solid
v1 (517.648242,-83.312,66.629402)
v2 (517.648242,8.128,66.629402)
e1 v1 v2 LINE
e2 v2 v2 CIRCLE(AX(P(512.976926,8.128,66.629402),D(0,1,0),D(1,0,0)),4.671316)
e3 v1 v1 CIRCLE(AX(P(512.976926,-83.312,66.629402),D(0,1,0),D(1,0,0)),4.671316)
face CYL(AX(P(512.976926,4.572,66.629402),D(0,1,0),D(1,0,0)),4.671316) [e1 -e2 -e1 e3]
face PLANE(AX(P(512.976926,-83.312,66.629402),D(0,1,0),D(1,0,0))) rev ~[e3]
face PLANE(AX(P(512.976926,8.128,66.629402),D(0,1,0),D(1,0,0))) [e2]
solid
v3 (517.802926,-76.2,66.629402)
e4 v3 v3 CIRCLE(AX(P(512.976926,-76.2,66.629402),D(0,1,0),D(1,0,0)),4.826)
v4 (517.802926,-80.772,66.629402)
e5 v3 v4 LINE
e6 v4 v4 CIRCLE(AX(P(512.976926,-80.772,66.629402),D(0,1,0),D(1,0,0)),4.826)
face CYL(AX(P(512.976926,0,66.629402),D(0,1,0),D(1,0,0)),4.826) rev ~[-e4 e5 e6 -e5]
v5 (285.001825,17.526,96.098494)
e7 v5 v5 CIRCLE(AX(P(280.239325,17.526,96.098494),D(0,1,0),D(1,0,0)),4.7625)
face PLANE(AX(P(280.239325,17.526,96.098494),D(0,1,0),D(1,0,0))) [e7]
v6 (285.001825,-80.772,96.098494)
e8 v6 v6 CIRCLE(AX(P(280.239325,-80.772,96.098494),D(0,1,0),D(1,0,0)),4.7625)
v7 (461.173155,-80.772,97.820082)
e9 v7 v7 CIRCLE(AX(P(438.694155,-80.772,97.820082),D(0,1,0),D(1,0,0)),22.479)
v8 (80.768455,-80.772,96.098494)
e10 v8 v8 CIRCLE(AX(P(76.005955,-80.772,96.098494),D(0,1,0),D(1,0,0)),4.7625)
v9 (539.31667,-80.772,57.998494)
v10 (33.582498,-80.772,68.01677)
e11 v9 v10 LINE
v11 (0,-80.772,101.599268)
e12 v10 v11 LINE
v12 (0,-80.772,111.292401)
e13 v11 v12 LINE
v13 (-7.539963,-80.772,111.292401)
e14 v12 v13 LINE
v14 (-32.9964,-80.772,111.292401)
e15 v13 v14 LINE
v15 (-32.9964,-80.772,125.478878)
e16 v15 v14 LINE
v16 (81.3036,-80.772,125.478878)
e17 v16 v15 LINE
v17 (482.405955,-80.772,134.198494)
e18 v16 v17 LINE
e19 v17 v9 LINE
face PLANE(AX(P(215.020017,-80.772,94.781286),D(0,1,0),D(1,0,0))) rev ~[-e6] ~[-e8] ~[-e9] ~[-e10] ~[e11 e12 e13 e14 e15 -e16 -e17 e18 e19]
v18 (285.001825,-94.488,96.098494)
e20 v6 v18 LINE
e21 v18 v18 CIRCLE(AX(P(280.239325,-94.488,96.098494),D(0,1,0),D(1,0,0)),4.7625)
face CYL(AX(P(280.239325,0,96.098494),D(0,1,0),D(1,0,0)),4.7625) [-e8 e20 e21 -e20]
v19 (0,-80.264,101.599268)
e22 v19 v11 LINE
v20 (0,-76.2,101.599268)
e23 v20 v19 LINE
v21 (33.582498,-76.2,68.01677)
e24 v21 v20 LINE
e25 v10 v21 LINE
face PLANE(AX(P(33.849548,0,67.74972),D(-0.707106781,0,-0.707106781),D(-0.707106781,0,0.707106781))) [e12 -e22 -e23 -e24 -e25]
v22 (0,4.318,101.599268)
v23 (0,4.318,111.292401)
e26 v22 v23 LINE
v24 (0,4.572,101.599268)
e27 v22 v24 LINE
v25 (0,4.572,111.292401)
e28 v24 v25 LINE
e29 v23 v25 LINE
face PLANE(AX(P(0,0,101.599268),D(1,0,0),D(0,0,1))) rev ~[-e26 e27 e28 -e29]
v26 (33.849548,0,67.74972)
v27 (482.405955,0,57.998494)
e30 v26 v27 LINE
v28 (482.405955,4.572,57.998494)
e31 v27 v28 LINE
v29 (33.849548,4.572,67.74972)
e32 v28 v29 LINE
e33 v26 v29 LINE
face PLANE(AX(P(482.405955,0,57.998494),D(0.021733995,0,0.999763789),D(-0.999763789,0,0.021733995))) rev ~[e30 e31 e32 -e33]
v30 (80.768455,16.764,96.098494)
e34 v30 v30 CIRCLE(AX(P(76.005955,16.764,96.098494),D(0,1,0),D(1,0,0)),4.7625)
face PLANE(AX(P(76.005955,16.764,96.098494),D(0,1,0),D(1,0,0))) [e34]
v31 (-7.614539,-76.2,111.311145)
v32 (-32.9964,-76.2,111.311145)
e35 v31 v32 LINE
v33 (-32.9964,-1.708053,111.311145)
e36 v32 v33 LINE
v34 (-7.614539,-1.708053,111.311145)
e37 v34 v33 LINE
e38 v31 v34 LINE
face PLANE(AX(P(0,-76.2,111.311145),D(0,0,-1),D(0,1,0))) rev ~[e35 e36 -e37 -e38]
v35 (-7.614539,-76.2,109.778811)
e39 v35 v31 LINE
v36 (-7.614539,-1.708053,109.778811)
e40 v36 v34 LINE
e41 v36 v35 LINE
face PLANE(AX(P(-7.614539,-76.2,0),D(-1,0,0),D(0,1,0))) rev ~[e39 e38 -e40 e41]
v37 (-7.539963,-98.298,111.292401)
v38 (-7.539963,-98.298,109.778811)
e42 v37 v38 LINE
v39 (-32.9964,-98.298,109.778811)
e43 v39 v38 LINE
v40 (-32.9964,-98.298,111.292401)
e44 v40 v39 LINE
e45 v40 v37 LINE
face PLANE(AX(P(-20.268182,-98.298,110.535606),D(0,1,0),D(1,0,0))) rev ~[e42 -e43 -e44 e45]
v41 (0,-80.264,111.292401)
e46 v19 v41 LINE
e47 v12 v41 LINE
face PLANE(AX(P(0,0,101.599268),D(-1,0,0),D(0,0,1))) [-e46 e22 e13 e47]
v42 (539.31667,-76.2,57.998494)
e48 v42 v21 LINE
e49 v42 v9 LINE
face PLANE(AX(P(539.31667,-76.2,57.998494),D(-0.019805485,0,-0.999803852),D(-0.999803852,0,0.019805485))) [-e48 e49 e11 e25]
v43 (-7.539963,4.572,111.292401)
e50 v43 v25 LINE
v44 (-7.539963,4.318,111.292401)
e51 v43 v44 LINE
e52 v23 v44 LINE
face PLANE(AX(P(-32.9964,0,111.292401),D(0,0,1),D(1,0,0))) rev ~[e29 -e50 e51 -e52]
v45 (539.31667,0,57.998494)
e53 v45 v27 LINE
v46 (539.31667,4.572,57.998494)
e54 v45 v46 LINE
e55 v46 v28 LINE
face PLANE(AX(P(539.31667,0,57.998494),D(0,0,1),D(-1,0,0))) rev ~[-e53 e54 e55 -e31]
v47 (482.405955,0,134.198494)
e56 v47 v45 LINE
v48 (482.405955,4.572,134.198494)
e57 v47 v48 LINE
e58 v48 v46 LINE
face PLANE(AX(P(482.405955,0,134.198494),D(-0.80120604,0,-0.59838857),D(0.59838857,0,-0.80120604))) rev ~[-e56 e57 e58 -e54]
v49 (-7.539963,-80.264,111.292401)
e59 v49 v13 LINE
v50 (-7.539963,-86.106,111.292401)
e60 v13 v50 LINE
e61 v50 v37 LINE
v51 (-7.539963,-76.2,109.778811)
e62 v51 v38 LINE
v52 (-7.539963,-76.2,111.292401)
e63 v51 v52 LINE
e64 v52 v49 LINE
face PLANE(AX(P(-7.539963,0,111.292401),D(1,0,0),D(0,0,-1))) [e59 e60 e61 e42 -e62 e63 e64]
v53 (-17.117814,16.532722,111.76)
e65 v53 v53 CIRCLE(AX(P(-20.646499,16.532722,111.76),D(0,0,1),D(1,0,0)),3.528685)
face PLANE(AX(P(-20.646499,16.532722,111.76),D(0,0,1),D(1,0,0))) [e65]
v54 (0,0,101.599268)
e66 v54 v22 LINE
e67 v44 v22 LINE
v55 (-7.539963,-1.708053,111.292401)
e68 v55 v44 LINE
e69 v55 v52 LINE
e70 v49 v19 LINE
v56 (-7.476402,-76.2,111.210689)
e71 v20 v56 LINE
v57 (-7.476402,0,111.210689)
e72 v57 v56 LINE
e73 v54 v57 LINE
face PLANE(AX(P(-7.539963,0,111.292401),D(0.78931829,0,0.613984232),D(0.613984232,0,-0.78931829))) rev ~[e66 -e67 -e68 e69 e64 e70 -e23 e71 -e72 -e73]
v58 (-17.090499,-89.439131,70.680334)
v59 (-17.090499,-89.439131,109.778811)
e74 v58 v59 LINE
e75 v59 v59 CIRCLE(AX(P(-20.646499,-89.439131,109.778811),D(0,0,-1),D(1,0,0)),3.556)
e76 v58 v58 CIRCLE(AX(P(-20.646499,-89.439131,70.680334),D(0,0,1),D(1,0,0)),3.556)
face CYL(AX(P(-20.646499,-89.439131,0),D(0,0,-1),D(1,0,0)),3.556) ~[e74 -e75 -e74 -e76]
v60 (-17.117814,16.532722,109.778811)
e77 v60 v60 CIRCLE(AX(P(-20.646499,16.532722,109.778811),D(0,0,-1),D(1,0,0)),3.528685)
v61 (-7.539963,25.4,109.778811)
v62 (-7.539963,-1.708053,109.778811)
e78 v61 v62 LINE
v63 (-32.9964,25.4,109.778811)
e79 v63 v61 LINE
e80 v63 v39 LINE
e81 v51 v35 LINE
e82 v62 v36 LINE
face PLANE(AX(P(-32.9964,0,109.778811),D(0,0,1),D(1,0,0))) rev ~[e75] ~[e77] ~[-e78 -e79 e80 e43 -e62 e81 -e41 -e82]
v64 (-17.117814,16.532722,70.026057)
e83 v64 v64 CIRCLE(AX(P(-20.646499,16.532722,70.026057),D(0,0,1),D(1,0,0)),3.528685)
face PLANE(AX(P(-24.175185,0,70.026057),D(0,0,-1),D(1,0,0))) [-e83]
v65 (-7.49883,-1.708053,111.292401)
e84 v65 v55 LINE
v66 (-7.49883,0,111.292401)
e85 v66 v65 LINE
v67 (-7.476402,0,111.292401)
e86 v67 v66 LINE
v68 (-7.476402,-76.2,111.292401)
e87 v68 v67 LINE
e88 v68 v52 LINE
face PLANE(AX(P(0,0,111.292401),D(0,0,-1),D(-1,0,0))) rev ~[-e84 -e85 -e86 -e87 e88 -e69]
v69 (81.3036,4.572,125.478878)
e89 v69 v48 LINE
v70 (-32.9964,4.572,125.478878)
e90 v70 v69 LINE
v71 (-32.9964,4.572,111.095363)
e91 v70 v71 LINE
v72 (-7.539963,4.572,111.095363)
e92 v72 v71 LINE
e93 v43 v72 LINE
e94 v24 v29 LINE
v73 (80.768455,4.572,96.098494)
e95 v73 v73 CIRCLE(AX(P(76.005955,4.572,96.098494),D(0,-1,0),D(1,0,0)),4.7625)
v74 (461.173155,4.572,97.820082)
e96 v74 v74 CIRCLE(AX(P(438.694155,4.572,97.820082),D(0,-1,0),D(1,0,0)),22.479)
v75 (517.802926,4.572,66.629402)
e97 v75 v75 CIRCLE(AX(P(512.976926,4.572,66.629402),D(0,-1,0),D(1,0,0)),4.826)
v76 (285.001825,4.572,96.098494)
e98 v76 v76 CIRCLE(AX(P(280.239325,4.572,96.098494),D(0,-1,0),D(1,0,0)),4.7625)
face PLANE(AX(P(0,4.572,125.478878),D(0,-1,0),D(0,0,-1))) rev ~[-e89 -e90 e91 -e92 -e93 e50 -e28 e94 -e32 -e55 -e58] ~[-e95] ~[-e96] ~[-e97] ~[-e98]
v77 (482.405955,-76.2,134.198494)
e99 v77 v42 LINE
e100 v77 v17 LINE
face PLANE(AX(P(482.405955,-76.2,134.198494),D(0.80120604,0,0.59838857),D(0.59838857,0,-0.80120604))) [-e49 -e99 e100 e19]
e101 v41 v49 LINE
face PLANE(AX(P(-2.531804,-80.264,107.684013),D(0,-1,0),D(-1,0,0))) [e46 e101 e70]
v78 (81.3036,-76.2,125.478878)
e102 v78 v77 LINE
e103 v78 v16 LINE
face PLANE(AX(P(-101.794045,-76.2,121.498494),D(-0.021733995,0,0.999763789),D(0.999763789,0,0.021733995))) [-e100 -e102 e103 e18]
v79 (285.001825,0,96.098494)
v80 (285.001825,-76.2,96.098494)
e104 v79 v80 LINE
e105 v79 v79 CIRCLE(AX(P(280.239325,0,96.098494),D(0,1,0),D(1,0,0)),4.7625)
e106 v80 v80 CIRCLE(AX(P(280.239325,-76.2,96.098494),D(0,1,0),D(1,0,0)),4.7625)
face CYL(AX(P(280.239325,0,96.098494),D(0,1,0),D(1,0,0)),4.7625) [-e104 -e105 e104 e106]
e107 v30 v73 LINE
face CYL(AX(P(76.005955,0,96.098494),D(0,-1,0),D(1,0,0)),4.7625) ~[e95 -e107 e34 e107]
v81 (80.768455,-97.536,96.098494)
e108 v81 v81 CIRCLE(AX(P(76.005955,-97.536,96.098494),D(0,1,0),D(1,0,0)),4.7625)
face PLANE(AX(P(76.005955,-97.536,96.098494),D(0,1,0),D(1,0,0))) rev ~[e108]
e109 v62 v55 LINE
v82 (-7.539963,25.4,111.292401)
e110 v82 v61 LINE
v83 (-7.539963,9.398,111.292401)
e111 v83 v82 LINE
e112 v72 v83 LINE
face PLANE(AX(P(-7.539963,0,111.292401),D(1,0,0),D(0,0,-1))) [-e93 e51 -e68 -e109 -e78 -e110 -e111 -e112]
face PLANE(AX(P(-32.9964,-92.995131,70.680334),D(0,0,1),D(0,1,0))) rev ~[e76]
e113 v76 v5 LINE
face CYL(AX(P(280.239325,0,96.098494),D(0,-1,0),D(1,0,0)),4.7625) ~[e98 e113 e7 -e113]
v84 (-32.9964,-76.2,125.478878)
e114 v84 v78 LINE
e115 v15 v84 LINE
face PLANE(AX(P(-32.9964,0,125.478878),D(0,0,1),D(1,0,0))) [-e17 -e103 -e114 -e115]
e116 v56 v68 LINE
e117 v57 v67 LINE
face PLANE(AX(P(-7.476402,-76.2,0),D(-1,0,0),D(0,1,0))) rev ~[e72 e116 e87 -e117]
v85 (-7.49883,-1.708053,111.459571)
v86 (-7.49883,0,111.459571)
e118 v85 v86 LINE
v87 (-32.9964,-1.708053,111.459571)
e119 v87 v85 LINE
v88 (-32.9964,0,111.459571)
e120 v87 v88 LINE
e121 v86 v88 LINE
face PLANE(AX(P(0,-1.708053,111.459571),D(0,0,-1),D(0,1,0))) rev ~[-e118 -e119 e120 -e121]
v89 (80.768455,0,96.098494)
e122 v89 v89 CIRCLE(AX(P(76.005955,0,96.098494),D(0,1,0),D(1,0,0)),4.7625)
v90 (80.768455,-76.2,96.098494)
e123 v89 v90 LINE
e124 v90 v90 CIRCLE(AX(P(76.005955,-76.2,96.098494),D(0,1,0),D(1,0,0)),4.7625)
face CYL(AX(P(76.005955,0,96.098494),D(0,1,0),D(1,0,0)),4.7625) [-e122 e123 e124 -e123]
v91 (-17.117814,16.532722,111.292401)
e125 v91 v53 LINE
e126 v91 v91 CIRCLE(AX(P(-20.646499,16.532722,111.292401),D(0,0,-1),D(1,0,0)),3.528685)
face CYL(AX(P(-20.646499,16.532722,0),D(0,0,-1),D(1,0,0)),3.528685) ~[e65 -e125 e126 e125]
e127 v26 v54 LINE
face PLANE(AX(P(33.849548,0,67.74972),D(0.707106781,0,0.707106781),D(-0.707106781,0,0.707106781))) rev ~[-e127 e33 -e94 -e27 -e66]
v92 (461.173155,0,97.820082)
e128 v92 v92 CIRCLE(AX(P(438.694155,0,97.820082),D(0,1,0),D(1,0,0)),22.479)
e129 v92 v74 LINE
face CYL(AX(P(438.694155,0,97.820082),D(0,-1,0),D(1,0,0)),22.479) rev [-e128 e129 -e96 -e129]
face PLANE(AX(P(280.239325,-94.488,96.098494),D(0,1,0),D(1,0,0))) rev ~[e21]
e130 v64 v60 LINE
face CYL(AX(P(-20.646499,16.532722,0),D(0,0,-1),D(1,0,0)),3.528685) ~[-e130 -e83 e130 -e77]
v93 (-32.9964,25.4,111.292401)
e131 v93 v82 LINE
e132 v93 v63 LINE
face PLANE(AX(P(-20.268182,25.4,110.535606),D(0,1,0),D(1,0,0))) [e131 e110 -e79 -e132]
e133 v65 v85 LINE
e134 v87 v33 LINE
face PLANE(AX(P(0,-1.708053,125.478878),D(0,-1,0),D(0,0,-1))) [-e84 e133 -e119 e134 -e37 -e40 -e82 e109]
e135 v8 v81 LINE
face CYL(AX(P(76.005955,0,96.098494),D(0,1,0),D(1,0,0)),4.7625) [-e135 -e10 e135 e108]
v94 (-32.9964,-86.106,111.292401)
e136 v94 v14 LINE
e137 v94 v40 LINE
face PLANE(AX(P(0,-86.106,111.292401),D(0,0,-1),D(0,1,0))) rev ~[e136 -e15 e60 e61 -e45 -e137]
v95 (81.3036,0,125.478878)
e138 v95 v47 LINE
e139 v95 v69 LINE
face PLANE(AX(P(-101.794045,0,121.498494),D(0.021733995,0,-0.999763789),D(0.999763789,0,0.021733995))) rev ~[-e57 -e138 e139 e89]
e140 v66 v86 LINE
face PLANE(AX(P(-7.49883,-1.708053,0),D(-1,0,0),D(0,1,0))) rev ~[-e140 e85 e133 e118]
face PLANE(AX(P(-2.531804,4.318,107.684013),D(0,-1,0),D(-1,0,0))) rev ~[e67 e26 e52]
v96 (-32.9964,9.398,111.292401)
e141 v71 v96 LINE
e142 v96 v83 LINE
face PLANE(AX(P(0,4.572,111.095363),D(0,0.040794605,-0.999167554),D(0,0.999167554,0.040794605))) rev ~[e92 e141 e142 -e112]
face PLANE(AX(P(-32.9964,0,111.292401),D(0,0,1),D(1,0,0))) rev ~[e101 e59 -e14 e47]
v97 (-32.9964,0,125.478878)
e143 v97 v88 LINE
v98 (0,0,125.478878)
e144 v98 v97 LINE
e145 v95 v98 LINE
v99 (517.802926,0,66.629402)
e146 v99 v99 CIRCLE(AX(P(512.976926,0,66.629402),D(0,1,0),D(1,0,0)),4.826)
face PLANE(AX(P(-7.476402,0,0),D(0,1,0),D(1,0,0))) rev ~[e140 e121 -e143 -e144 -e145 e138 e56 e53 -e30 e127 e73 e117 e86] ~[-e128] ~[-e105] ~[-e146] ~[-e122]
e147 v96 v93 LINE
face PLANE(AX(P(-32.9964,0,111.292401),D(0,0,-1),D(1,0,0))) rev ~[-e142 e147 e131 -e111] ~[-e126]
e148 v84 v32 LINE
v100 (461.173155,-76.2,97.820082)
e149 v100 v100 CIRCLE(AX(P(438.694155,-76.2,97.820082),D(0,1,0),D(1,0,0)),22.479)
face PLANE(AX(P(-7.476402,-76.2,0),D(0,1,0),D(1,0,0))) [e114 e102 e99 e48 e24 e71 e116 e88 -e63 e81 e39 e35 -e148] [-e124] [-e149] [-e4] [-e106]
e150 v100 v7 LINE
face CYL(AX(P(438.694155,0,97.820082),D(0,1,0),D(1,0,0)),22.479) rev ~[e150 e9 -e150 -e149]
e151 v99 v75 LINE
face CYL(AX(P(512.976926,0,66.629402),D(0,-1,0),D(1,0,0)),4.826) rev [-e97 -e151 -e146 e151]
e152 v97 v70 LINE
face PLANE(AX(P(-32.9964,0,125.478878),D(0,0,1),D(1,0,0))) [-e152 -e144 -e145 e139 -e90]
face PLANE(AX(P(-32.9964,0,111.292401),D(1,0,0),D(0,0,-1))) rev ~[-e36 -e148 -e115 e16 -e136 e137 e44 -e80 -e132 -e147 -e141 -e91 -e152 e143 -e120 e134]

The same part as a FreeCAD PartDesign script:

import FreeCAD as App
import Part
import Sketcher

V = App.Vector
Q = App.Units.Quantity


def add_polygon(sketch, points):
    """Adds a closed chain of lines whose ends are joined by coincident constraints."""
    first, n = sketch.GeometryCount, len(points)
    for a, b in zip(points, points[1:] + points[:1]):
        sketch.addGeometry(Part.LineSegment(App.Vector(*a, 0), App.Vector(*b, 0)), False)
    for i in range(n):
        sketch.addConstraint(Sketcher.Constraint("Coincident", first + i, 2, first + (i + 1) % n, 1))

doc = App.newDocument("Part")
body = doc.addObject("PartDesign::Body", "Body")

sketch1 = body.newObject("Sketcher::SketchObject", "Sketch")
sketch1.AttachmentSupport = (doc.getObject("XZ_Plane"), [""])
sketch1.MapMode = "FlatFace"
add_polygon(sketch1, [(-102, 71), (-102, 121), (482, 134), (539, 58), (482, 58)])
sketch1.addConstraint(Sketcher.Constraint("Vertical", 0))
sketch1.addConstraint(Sketcher.Constraint("Horizontal", 3))
sketch1.addConstraint(Sketcher.Constraint("Vertical", 1, 2, 3, 2))
sketch1.addConstraint(Sketcher.Constraint("Equal", 1, 4))
sketch1.addConstraint(Sketcher.Constraint("DistanceY", 0, 1, 0, 2, Q("2 in")))
sketch1.addConstraint(Sketcher.Constraint("DistanceX", 0, 2, 1, 2, Q("23 in")))
sketch1.addConstraint(Sketcher.Constraint("DistanceY", 2, 2, 1, 2, Q("3 in")))
sketch1.addConstraint(Sketcher.Constraint("Distance", 2, 95.106622))
sketch1.addConstraint(Sketcher.Constraint("DistanceX", -1, 1, 2, 2, 539.31667))
sketch1.addConstraint(Sketcher.Constraint("DistanceY", -1, 1, 0, 2, 121.498494))
pad1 = body.newObject("PartDesign::Pad", "Pad")
pad1.Profile = sketch1
pad1.Length = Q("0.18 in")
pad1.Reversed = True

sketch2 = body.newObject("Sketcher::SketchObject", "Sketch001")
sketch2.AttachmentSupport = (doc.getObject("XZ_Plane"), [""])
sketch2.MapMode = "FlatFace"
sketch2.addGeometry(Part.Circle(V(76, 96.1, 0), V(0, 0, 1), 4.8), False)
sketch2.addGeometry(Part.Circle(V(280.2, 96.1, 0), V(0, 0, 1), 4.8), False)
sketch2.addConstraint(Sketcher.Constraint("Equal", 0, 1))
sketch2.addConstraint(Sketcher.Constraint("Horizontal", 0, 3, 1, 3))
sketch2.addConstraint(Sketcher.Constraint("Diameter", 0, Q("0.375 in")))
sketch2.addConstraint(Sketcher.Constraint("DistanceX", 0, 3, 1, 3, 204.233371))
sketch2.addConstraint(Sketcher.Constraint("DistanceX", -1, 1, 0, 3, 76.005955))
sketch2.addConstraint(Sketcher.Constraint("DistanceY", -1, 1, 0, 3, 96.098494))
pocket1 = body.newObject("PartDesign::Pocket", "Pocket")
pocket1.Profile = sketch2
pocket1.Type = "ThroughAll"
pocket1.Midplane = True

sketch3 = body.newObject("Sketcher::SketchObject", "Sketch002")
sketch3.AttachmentSupport = (doc.getObject("XZ_Plane"), [""])
sketch3.MapMode = "FlatFace"
sketch3.addGeometry(Part.Circle(V(439, 98, 0), V(0, 0, 1), 8), False)
sketch3.addConstraint(Sketcher.Constraint("Diameter", 0, Q("0.625 in")))
sketch3.addConstraint(Sketcher.Constraint("DistanceY", -1, 1, 0, 3, 97.820082))
sketch3.addConstraint(Sketcher.Constraint("DistanceX", -1, 1, 0, 3, 438.694155))
pocket2 = body.newObject("PartDesign::Pocket", "Pocket001")
pocket2.Profile = sketch3
pocket2.Type = "ThroughAll"
pocket2.Midplane = True

sketch4 = body.newObject("Sketcher::SketchObject", "Sketch003")
sketch4.AttachmentSupport = (doc.getObject("XZ_Plane"), [""])
sketch4.MapMode = "FlatFace"
sketch4.addGeometry(Part.Circle(V(280.2, 96.1, 0), V(0, 0, 1), 4.8), False)
sketch4.addConstraint(Sketcher.Constraint("Diameter", 0, Q("0.375 in")))
sketch4.addConstraint(Sketcher.Constraint("DistanceX", -1, 1, 0, 3, 280.239325))
sketch4.addConstraint(Sketcher.Constraint("DistanceY", -1, 1, 0, 3, 96.098494))
pad2 = body.newObject("PartDesign::Pad", "Pad001")
pad2.Profile = sketch4
pad2.Type = "TwoLengths"
pad2.Length = Q("0.69 in")
pad2.Length2 = Q("3.72 in")
pad2.Reversed = True

sketch5 = body.newObject("Sketcher::SketchObject", "Sketch004")
sketch5.AttachmentSupport = (doc.getObject("XZ_Plane"), [""])
sketch5.MapMode = "FlatFace"
sketch5.addGeometry(Part.Circle(V(76, 96.1, 0), V(0, 0, 1), 4.8), False)
sketch5.addConstraint(Sketcher.Constraint("Diameter", 0, Q("0.375 in")))
sketch5.addConstraint(Sketcher.Constraint("DistanceX", -1, 1, 0, 3, 76.005955))
sketch5.addConstraint(Sketcher.Constraint("DistanceY", -1, 1, 0, 3, 96.098494))
pad3 = body.newObject("PartDesign::Pad", "Pad002")
pad3.Profile = sketch5
pad3.Type = "TwoLengths"
pad3.Length = Q("0.63 in")
pad3.Length2 = Q("3.84 in")
pad3.Reversed = True

sketch6 = body.newObject("Sketcher::SketchObject", "Sketch005")
sketch6.AttachmentSupport = (doc.getObject("XZ_Plane"), [""])
sketch6.MapMode = "FlatFace"
sketch6.AttachmentOffset = App.Placement(V(0, 0, 3 * 25.4), App.Rotation())
add_polygon(sketch6, [(-102, 71), (539, 58), (482, 134), (-102, 121)])
sketch6.addGeometry(Part.Circle(V(439, 98, 0), V(0, 0, 1), 8), False)
sketch6.addConstraint(Sketcher.Constraint("Vertical", 3))
sketch6.addConstraint(Sketcher.Constraint("DistanceY", 3, 2, 3, 1, Q("2 in")))
sketch6.addConstraint(Sketcher.Constraint("Diameter", 4, Q("0.625 in")))
sketch6.addConstraint(Sketcher.Constraint("DistanceY", 0, 2, 1, 2, Q("3 in")))
sketch6.addConstraint(Sketcher.Constraint("DistanceX", 2, 2, 1, 2, Q("23 in")))
sketch6.addConstraint(Sketcher.Constraint("DistanceY", 2, 2, 1, 2, Q("0.5 in")))
sketch6.addConstraint(Sketcher.Constraint("DistanceX", 4, 3, 1, 2, 43.7118))
sketch6.addConstraint(Sketcher.Constraint("Distance", 1, 95.106622))
sketch6.addConstraint(Sketcher.Constraint("DistanceY", -1, 1, 4, 3, 97.820082))
sketch6.addConstraint(Sketcher.Constraint("DistanceX", -1, 1, 0, 2, 539.31667))
sketch6.addConstraint(Sketcher.Constraint("DistanceY", -1, 1, 0, 2, 57.998494))
pad4 = body.newObject("PartDesign::Pad", "Pad003")
pad4.Profile = sketch6
pad4.Length = Q("0.18 in")

sketch7 = body.newObject("Sketcher::SketchObject", "Sketch006")
sketch7.AttachmentSupport = (doc.getObject("XZ_Plane"), [""])
sketch7.MapMode = "FlatFace"
sketch7.addGeometry(Part.Circle(V(439, 98, 0), V(0, 0, 1), 22), False)
sketch7.addConstraint(Sketcher.Constraint("Diameter", 0, Q("1.77 in")))
sketch7.addConstraint(Sketcher.Constraint("DistanceY", -1, 1, 0, 3, 97.820082))
sketch7.addConstraint(Sketcher.Constraint("DistanceX", -1, 1, 0, 3, 438.694155))
pocket3 = body.newObject("PartDesign::Pocket", "Pocket002")
pocket3.Profile = sketch7
pocket3.Type = "ThroughAll"
pocket3.Midplane = True

sketch8 = body.newObject("Sketcher::SketchObject", "Sketch007")
sketch8.AttachmentSupport = (doc.getObject("XZ_Plane"), [""])
sketch8.MapMode = "FlatFace"
sketch8.addGeometry(Part.Circle(V(513, 66.6, 0), V(0, 0, 1), 4.8), False)
sketch8.addConstraint(Sketcher.Constraint("Diameter", 0, Q("0.38 in")))
sketch8.addConstraint(Sketcher.Constraint("DistanceX", -1, 1, 0, 3, 512.976926))
sketch8.addConstraint(Sketcher.Constraint("DistanceY", -1, 1, 0, 3, 66.629402))
pocket4 = body.newObject("PartDesign::Pocket", "Pocket003")
pocket4.Profile = sketch8
pocket4.Type = "ThroughAll"
pocket4.Midplane = True

sketch9 = body.newObject("Sketcher::SketchObject", "Sketch008")
sketch9.AttachmentSupport = (doc.getObject("XZ_Plane"), [""])
sketch9.MapMode = "FlatFace"
add_polygon(sketch9, [(0, 102), (34, 68), (-102, 71), (-102, 121), (0, 124)])
sketch9.addConstraint(Sketcher.Constraint("Vertical", 2))
sketch9.addConstraint(Sketcher.Constraint("Vertical", 4))
sketch9.addConstraint(Sketcher.Constraint("PointOnObject", 3, 2, -2))
sketch9.addConstraint(Sketcher.Constraint("DistanceY", 2, 1, 2, 2, Q("2 in")))
sketch9.addConstraint(Sketcher.Constraint("Angle", 0, Q("-45 deg")))
sketch9.addConstraint(Sketcher.Constraint("DistanceY", 4, 2, 4, 1, 22.11214))
sketch9.addConstraint(Sketcher.Constraint("Distance", 0, 47.87049))
sketch9.addConstraint(Sketcher.Constraint("Distance", 1, 135.675642))
sketch9.addConstraint(Sketcher.Constraint("DistanceY", -1, 1, 0, 2, 67.74972))
sketch9.addConstraint(Sketcher.Constraint("Distance", 3, 101.818096))
pocket5 = body.newObject("PartDesign::Pocket", "Pocket004")
pocket5.Profile = sketch9
pocket5.Type = "ThroughAll"
pocket5.Midplane = True

sketch10 = body.newObject("Sketcher::SketchObject", "Sketch009")
sketch10.AttachmentSupport = (doc.getObject("XZ_Plane"), [""])
sketch10.MapMode = "FlatFace"
add_polygon(sketch10, [(-33, 111), (-33, 125), (81, 125), (81, 111)])
sketch10.addConstraint(Sketcher.Constraint("Vertical", 0))
sketch10.addConstraint(Sketcher.Constraint("Horizontal", 1))
sketch10.addConstraint(Sketcher.Constraint("Vertical", 2))
sketch10.addConstraint(Sketcher.Constraint("Horizontal", 3))
sketch10.addConstraint(Sketcher.Constraint("DistanceX", 1, 1, 1, 2, Q("4.5 in")))
sketch10.addConstraint(Sketcher.Constraint("DistanceX", 0, 2, -1, 1, 32.9964))
sketch10.addConstraint(Sketcher.Constraint("DistanceY", -1, 1, 2, 2, 111.292401))
sketch10.addConstraint(Sketcher.Constraint("DistanceY", 0, 1, 0, 2, 14.186476))
pad5 = body.newObject("PartDesign::Pad", "Pad004")
pad5.Profile = sketch10
pad5.Type = "TwoLengths"
pad5.Length = Q("0.37 in")
pad5.Length2 = Q("3.39 in")
pad5.Reversed = True

sketch11 = body.newObject("Sketcher::SketchObject", "Sketch010")
sketch11.AttachmentSupport = (doc.getObject("XZ_Plane"), [""])
sketch11.MapMode = "FlatFace"
add_polygon(sketch11, [(-33, 109.8), (-33, 111.3), (-7.5, 111.3), (-7.5, 109.8)])
sketch11.addConstraint(Sketcher.Constraint("Vertical", 0))
sketch11.addConstraint(Sketcher.Constraint("Horizontal", 1))
sketch11.addConstraint(Sketcher.Constraint("Vertical", 2))
sketch11.addConstraint(Sketcher.Constraint("Horizontal", 3))
sketch11.addConstraint(Sketcher.Constraint("DistanceY", 0, 1, 0, 2, 1.51359))
sketch11.addConstraint(Sketcher.Constraint("DistanceX", 0, 2, -1, 1, 32.9964))
sketch11.addConstraint(Sketcher.Constraint("DistanceY", -1, 1, 0, 2, 111.292401))
sketch11.addConstraint(Sketcher.Constraint("DistanceX", 1, 1, 1, 2, 25.456437))
pad6 = body.newObject("PartDesign::Pad", "Pad005")
pad6.Profile = sketch11
pad6.Type = "TwoLengths"
pad6.Length = Q("1 in")
pad6.Length2 = Q("3.87 in")
pad6.Reversed = True

sketch12 = body.newObject("Sketcher::SketchObject", "Sketch011")
sketch12.AttachmentSupport = (doc.getObject("YZ_Plane"), [""])
sketch12.MapMode = "FlatFace"
add_polygon(sketch12, [(0, 125), (-76, 125), (-76, 112), (0, 112)])
sketch12.addConstraint(Sketcher.Constraint("Horizontal", 0))
sketch12.addConstraint(Sketcher.Constraint("Vertical", 1))
sketch12.addConstraint(Sketcher.Constraint("Horizontal", 2))
sketch12.addConstraint(Sketcher.Constraint("Vertical", 3))
sketch12.addConstraint(Sketcher.Constraint("PointOnObject", 2, 2, -2))
sketch12.addConstraint(Sketcher.Constraint("DistanceX", 0, 2, 0, 1, Q("3 in")))
sketch12.addConstraint(Sketcher.Constraint("DistanceY", 1, 2, 1, 1, 13.736168))
sketch12.addConstraint(Sketcher.Constraint("DistanceY", -1, 1, 1, 2, 111.74271))
pocket6 = body.newObject("PartDesign::Pocket", "Pocket005")
pocket6.Profile = sketch12
pocket6.Length = Q("5.02 in")
pocket6.Reversed = True

sketch13 = body.newObject("Sketcher::SketchObject", "Sketch012")
sketch13.AttachmentSupport = (doc.getObject("YZ_Plane"), [""])
sketch13.MapMode = "FlatFace"
add_polygon(sketch13, [(-2, 125), (-74, 125), (-74, 111), (-2, 111)])
sketch13.addConstraint(Sketcher.Constraint("Horizontal", 0))
sketch13.addConstraint(Sketcher.Constraint("Vertical", 1))
sketch13.addConstraint(Sketcher.Constraint("Horizontal", 2))
sketch13.addConstraint(Sketcher.Constraint("Vertical", 3))
sketch13.addConstraint(Sketcher.Constraint("DistanceX", 0, 2, 0, 1, 72.287064))
sketch13.addConstraint(Sketcher.Constraint("DistanceY", 1, 2, 1, 1, 14.167733))
sketch13.addConstraint(Sketcher.Constraint("DistanceX", 0, 2, -1, 1, 73.995117))
sketch13.addConstraint(Sketcher.Constraint("DistanceY", -1, 1, 0, 2, 125.478878))
pocket7 = body.newObject("PartDesign::Pocket", "Pocket006")
pocket7.Profile = sketch13
pocket7.Length = Q("5.02 in")

sketch14 = body.newObject("Sketcher::SketchObject", "Sketch013")
sketch14.AttachmentSupport = (doc.getObject("XY_Plane"), [""])
sketch14.MapMode = "FlatFace"
sketch14.AttachmentOffset = App.Placement(V(0, 0, 111.74271), App.Rotation())
add_polygon(sketch14, [(0, -5), (0, -71), (71, -71), (71, -5)])
sketch14.addConstraint(Sketcher.Constraint("Vertical", 0))
sketch14.addConstraint(Sketcher.Constraint("Horizontal", 1))
sketch14.addConstraint(Sketcher.Constraint("Vertical", 2))
sketch14.addConstraint(Sketcher.Constraint("Horizontal", 3))
sketch14.addConstraint(Sketcher.Constraint("PointOnObject", 0, 2, -2))
sketch14.addConstraint(Sketcher.Constraint("DistanceX", 1, 1, 1, 2, 71.243455))
sketch14.addConstraint(Sketcher.Constraint("DistanceY", 0, 2, 0, 1, 66.240284))
sketch14.addConstraint(Sketcher.Constraint("DistanceY", 0, 2, -1, 1, 71.184759))
pocket8 = body.newObject("PartDesign::Pocket", "Pocket007")
pocket8.Profile = sketch14
pocket8.Type = "ThroughAll"
pocket8.Midplane = True

sketch15 = body.newObject("Sketcher::SketchObject", "Sketch014")
sketch15.AttachmentSupport = (doc.getObject("XY_Plane"), [""])
sketch15.MapMode = "FlatFace"
add_polygon(sketch15, [(71.2, -4.9), (71.2, -71.2), (81.3, -76.2), (81.3, 0), (0, 0), (0, -4.9)])
sketch15.addConstraint(Sketcher.Constraint("Vertical", 0))
sketch15.addConstraint(Sketcher.Constraint("Vertical", 2))
sketch15.addConstraint(Sketcher.Constraint("Horizontal", 3))
sketch15.addConstraint(Sketcher.Constraint("Vertical", 4))
sketch15.addConstraint(Sketcher.Constraint("Horizontal", 5))
sketch15.addConstraint(Sketcher.Constraint("Coincident", 3, 2, -1, 1))
sketch15.addConstraint(Sketcher.Constraint("DistanceY", 2, 1, 2, 2, Q("3 in")))
sketch15.addConstraint(Sketcher.Constraint("DistanceX", 3, 2, 3, 1, 81.3036))
sketch15.addConstraint(Sketcher.Constraint("Distance", 1, 11.24096))
sketch15.addConstraint(Sketcher.Constraint("DistanceX", 5, 1, 5, 2, 71.243455))
sketch15.addConstraint(Sketcher.Constraint("DistanceY", 0, 2, 0, 1, 66.240284))
pocket9 = body.newObject("PartDesign::Pocket", "Pocket008")
pocket9.Profile = sketch15
pocket9.Type = "ThroughAll"
pocket9.Midplane = True

sketch16 = body.newObject("Sketcher::SketchObject", "Sketch015")
sketch16.AttachmentSupport = (doc.getObject("XY_Plane"), [""])
sketch16.MapMode = "FlatFace"
add_polygon(sketch16, [(71, -71), (0, -71), (0, -76), (82, -76)])
sketch16.addConstraint(Sketcher.Constraint("Horizontal", 0))
sketch16.addConstraint(Sketcher.Constraint("Vertical", 1))
sketch16.addConstraint(Sketcher.Constraint("Horizontal", 2))
sketch16.addConstraint(Sketcher.Constraint("PointOnObject", 0, 2, -2))
sketch16.addConstraint(Sketcher.Constraint("DistanceY", 1, 2, -1, 1, Q("3 in")))
sketch16.addConstraint(Sketcher.Constraint("DistanceX", 2, 1, 2, 2, 81.544591))
sketch16.addConstraint(Sketcher.Constraint("DistanceY", 1, 2, 1, 1, 5.015241))
sketch16.addConstraint(Sketcher.Constraint("Distance", 3, 11.45714))
pocket10 = body.newObject("PartDesign::Pocket", "Pocket009")
pocket10.Profile = sketch16
pocket10.Length = Q("15.65 in")
pocket10.Reversed = True

sketch17 = body.newObject("Sketcher::SketchObject", "Sketch016")
sketch17.AttachmentSupport = (doc.getObject("XZ_Plane"), [""])
sketch17.MapMode = "FlatFace"
sketch17.addGeometry(Part.Circle(V(76, 96.1, 0), V(0, 0, 1), 4.8), False)
sketch17.addConstraint(Sketcher.Constraint("Diameter", 0, Q("0.375 in")))
sketch17.addConstraint(Sketcher.Constraint("DistanceX", -1, 1, 0, 3, 76.005955))
sketch17.addConstraint(Sketcher.Constraint("DistanceY", -1, 1, 0, 3, 96.098494))
pad7 = body.newObject("PartDesign::Pad", "Pad006")
pad7.Profile = sketch17
pad7.Type = "TwoLengths"
pad7.Length = Q("0.66 in")
pad7.Length2 = Q("3.76 in")
pad7.Reversed = True

sketch18 = body.newObject("Sketcher::SketchObject", "Sketch017")
sketch18.AttachmentSupport = (doc.getObject("YZ_Plane"), [""])
sketch18.MapMode = "FlatFace"
add_polygon(sketch18, [(4.6, 125.5), (4.6, 111.1), (9.4, 111.3), (9.4, 125.5)])
sketch18.addConstraint(Sketcher.Constraint("Vertical", 0))
sketch18.addConstraint(Sketcher.Constraint("Vertical", 2))
sketch18.addConstraint(Sketcher.Constraint("Horizontal", 3))
sketch18.addConstraint(Sketcher.Constraint("DistanceX", 3, 2, 3, 1, Q("0.19 in")))
sketch18.addConstraint(Sketcher.Constraint("DistanceX", -1, 1, 0, 2, Q("0.18 in")))
sketch18.addConstraint(Sketcher.Constraint("DistanceY", -1, 1, 1, 2, 111.292401))
sketch18.addConstraint(Sketcher.Constraint("Distance", 1, 4.830021))
sketch18.addConstraint(Sketcher.Constraint("DistanceY", 0, 2, 0, 1, 14.383515))
pocket11 = body.newObject("PartDesign::Pocket", "Pocket010")
pocket11.Profile = sketch18
pocket11.Type = "ThroughAll"
pocket11.Midplane = True

sketch19 = body.newObject("Sketcher::SketchObject", "Sketch018")
sketch19.AttachmentSupport = (doc.getObject("YZ_Plane"), [""])
sketch19.MapMode = "FlatFace"
add_polygon(sketch19, [(-81, 125), (-86, 125), (-86, 111), (-81, 111)])
sketch19.addConstraint(Sketcher.Constraint("Horizontal", 0))
sketch19.addConstraint(Sketcher.Constraint("Vertical", 1))
sketch19.addConstraint(Sketcher.Constraint("Horizontal", 2))
sketch19.addConstraint(Sketcher.Constraint("Vertical", 3))
sketch19.addConstraint(Sketcher.Constraint("DistanceX", 0, 2, 0, 1, Q("0.21 in")))
sketch19.addConstraint(Sketcher.Constraint("DistanceX", 0, 2, -1, 1, Q("3.39 in")))
sketch19.addConstraint(Sketcher.Constraint("DistanceY", -1, 1, 1, 2, 111.292401))
sketch19.addConstraint(Sketcher.Constraint("DistanceY", 1, 2, 1, 1, 14.186476))
pocket12 = body.newObject("PartDesign::Pocket", "Pocket011")
pocket12.Profile = sketch19
pocket12.Type = "ThroughAll"
pocket12.Midplane = True

sketch20 = body.newObject("Sketcher::SketchObject", "Sketch019")
sketch20.AttachmentSupport = (doc.getObject("YZ_Plane"), [""])
sketch20.MapMode = "FlatFace"
add_polygon(sketch20, [(0, 125.5), (-1.7, 125.5), (-1.7, 111.5), (0, 111.5)])
sketch20.addConstraint(Sketcher.Constraint("Horizontal", 0))
sketch20.addConstraint(Sketcher.Constraint("Vertical", 1))
sketch20.addConstraint(Sketcher.Constraint("Horizontal", 2))
sketch20.addConstraint(Sketcher.Constraint("Vertical", 3))
sketch20.addConstraint(Sketcher.Constraint("PointOnObject", 2, 2, -2))
sketch20.addConstraint(Sketcher.Constraint("DistanceX", 0, 2, 0, 1, 1.708053))
sketch20.addConstraint(Sketcher.Constraint("DistanceY", 1, 2, 1, 1, 14.019307))
sketch20.addConstraint(Sketcher.Constraint("DistanceY", -1, 1, 1, 2, 111.459571))
pocket13 = body.newObject("PartDesign::Pocket", "Pocket012")
pocket13.Profile = sketch20
pocket13.Type = "ThroughAll"
pocket13.Midplane = True

sketch21 = body.newObject("Sketcher::SketchObject", "Sketch020")
sketch21.AttachmentSupport = (doc.getObject("YZ_Plane"), [""])
sketch21.MapMode = "FlatFace"
add_polygon(sketch21, [(-74, 125.5), (-76.2, 125.5), (-76.2, 111.3), (-74, 111.3)])
sketch21.addConstraint(Sketcher.Constraint("Horizontal", 0))
sketch21.addConstraint(Sketcher.Constraint("Vertical", 1))
sketch21.addConstraint(Sketcher.Constraint("Horizontal", 2))
sketch21.addConstraint(Sketcher.Constraint("Vertical", 3))
sketch21.addConstraint(Sketcher.Constraint("DistanceX", 0, 2, -1, 1, Q("3 in")))
sketch21.addConstraint(Sketcher.Constraint("DistanceX", 0, 2, 0, 1, 2.204883))
sketch21.addConstraint(Sketcher.Constraint("DistanceY", 1, 2, 1, 1, 14.167733))
sketch21.addConstraint(Sketcher.Constraint("DistanceY", -1, 1, 0, 2, 125.478878))
pocket14 = body.newObject("PartDesign::Pocket", "Pocket013")
pocket14.Profile = sketch21
pocket14.Type = "ThroughAll"
pocket14.Midplane = True

sketch22 = body.newObject("Sketcher::SketchObject", "Sketch021")
sketch22.AttachmentSupport = (doc.getObject("XY_Plane"), [""])
sketch22.MapMode = "FlatFace"
add_polygon(sketch22, [(-8, -2), (-8, -76), (0, -76), (0, -2)])
sketch22.addConstraint(Sketcher.Constraint("Vertical", 0))
sketch22.addConstraint(Sketcher.Constraint("Horizontal", 1))
sketch22.addConstraint(Sketcher.Constraint("Vertical", 2))
sketch22.addConstraint(Sketcher.Constraint("Horizontal", 3))
sketch22.addConstraint(Sketcher.Constraint("PointOnObject", 1, 2, -2))
sketch22.addConstraint(Sketcher.Constraint("DistanceY", 0, 2, -1, 1, Q("3 in")))
sketch22.addConstraint(Sketcher.Constraint("DistanceX", 1, 1, 1, 2, 7.614539))
sketch22.addConstraint(Sketcher.Constraint("DistanceY", 0, 2, 0, 1, 74.491947))
pocket15 = body.newObject("PartDesign::Pocket", "Pocket014")
pocket15.Profile = sketch22
pocket15.Length = Q("10 in")
pocket15.Reversed = True

sketch23 = body.newObject("Sketcher::SketchObject", "Sketch022")
sketch23.AttachmentSupport = (doc.getObject("XY_Plane"), [""])
sketch23.MapMode = "FlatFace"
add_polygon(sketch23, [(-7.5, 0), (-7.5, -1.7), (0, -1.7), (0, 0)])
sketch23.addConstraint(Sketcher.Constraint("Vertical", 0))
sketch23.addConstraint(Sketcher.Constraint("Horizontal", 1))
sketch23.addConstraint(Sketcher.Constraint("Vertical", 2))
sketch23.addConstraint(Sketcher.Constraint("Horizontal", 3))
sketch23.addConstraint(Sketcher.Constraint("Coincident", 2, 2, -1, 1))
sketch23.addConstraint(Sketcher.Constraint("DistanceX", 1, 1, 1, 2, 7.49883))
sketch23.addConstraint(Sketcher.Constraint("DistanceY", 0, 2, 0, 1, 1.708053))
pocket16 = body.newObject("PartDesign::Pocket", "Pocket015")
pocket16.Profile = sketch23
pocket16.Length = Q("13.39 in")
pocket16.Reversed = True

sketch24 = body.newObject("Sketcher::SketchObject", "Sketch023")
sketch24.AttachmentSupport = (doc.getObject("XZ_Plane"), [""])
sketch24.MapMode = "FlatFace"
add_polygon(sketch24, [(0, 102), (-8, 111), (0, 111)])
sketch24.addConstraint(Sketcher.Constraint("Horizontal", 1))
sketch24.addConstraint(Sketcher.Constraint("Vertical", 2))
sketch24.addConstraint(Sketcher.Constraint("PointOnObject", 1, 2, -2))
sketch24.addConstraint(Sketcher.Constraint("DistanceY", -1, 1, 0, 2, 111.292401))
sketch24.addConstraint(Sketcher.Constraint("DistanceX", 1, 1, 1, 2, 7.539963))
sketch24.addConstraint(Sketcher.Constraint("DistanceY", 2, 2, 2, 1, 9.693133))
pad8 = body.newObject("PartDesign::Pad", "Pad007")
pad8.Profile = sketch24
pad8.Type = "TwoLengths"
pad8.Length = Q("0.17 in")
pad8.Length2 = Q("3.16 in")
pad8.Reversed = True

sketch25 = body.newObject("Sketcher::SketchObject", "Sketch024")
sketch25.AttachmentSupport = (doc.getObject("XY_Plane"), [""])
sketch25.MapMode = "FlatFace"
add_polygon(sketch25, [(-7, 0), (-7, -76), (0, -76), (0, 0)])
sketch25.addConstraint(Sketcher.Constraint("Vertical", 0))
sketch25.addConstraint(Sketcher.Constraint("Horizontal", 1))
sketch25.addConstraint(Sketcher.Constraint("Vertical", 2))
sketch25.addConstraint(Sketcher.Constraint("Horizontal", 3))
sketch25.addConstraint(Sketcher.Constraint("Coincident", 2, 2, -1, 1))
sketch25.addConstraint(Sketcher.Constraint("DistanceY", 0, 2, 0, 1, Q("3 in")))
sketch25.addConstraint(Sketcher.Constraint("DistanceX", 1, 1, 1, 2, 7.476402))
pocket17 = body.newObject("PartDesign::Pocket", "Pocket016")
pocket17.Profile = sketch25
pocket17.Length = Q("8.23 in")
pocket17.Reversed = True

sketch26 = body.newObject("Sketcher::SketchObject", "Sketch025")
sketch26.AttachmentSupport = (doc.getObject("XY_Plane"), [""])
sketch26.MapMode = "FlatFace"
sketch26.addGeometry(Part.Circle(V(-20.6, 16.5, 0), V(0, 0, 1), 3.5), False)
sketch26.addConstraint(Sketcher.Constraint("Diameter", 0, 7.057371))
sketch26.addConstraint(Sketcher.Constraint("DistanceX", 0, 3, -1, 1, 20.646499))
sketch26.addConstraint(Sketcher.Constraint("DistanceY", -1, 1, 0, 3, 16.532722))
pad9 = body.newObject("PartDesign::Pad", "Pad008")
pad9.Profile = sketch26
pad9.Length = Q("4.4 in")

sketch27 = body.newObject("Sketcher::SketchObject", "Sketch026")
sketch27.AttachmentSupport = (doc.getObject("XZ_Plane"), [""])
sketch27.MapMode = "FlatFace"
add_polygon(sketch27, [(-24, 0), (-24, 70), (-17, 70), (-17, 0)])
sketch27.addConstraint(Sketcher.Constraint("Vertical", 0))
sketch27.addConstraint(Sketcher.Constraint("Horizontal", 1))
sketch27.addConstraint(Sketcher.Constraint("Vertical", 2))
sketch27.addConstraint(Sketcher.Constraint("Horizontal", 3))
sketch27.addConstraint(Sketcher.Constraint("PointOnObject", 2, 2, -1))
sketch27.addConstraint(Sketcher.Constraint("DistanceX", 1, 1, 1, 2, 7.057371))
sketch27.addConstraint(Sketcher.Constraint("DistanceY", 0, 1, 0, 2, 70.026057))
sketch27.addConstraint(Sketcher.Constraint("DistanceX", 0, 2, -1, 1, 24.175185))
pocket18 = body.newObject("PartDesign::Pocket", "Pocket017")
pocket18.Profile = sketch27
pocket18.Length = Q("7.89 in")

sketch28 = body.newObject("Sketcher::SketchObject", "Sketch027")
sketch28.AttachmentSupport = (doc.getObject("XY_Plane"), [""])
sketch28.MapMode = "FlatFace"
sketch28.addGeometry(Part.Circle(V(-20.6, -89.4, 0), V(0, 0, 1), 3.6), False)
sketch28.addConstraint(Sketcher.Constraint("Diameter", 0, Q("0.28 in")))
sketch28.addConstraint(Sketcher.Constraint("DistanceX", 0, 3, -1, 1, 20.646499))
sketch28.addConstraint(Sketcher.Constraint("DistanceY", 0, 3, -1, 1, 89.439131))
pad10 = body.newObject("PartDesign::Pad", "Pad009")
pad10.Profile = sketch28
pad10.Type = "TwoLengths"
pad10.Length = Q("4.37 in")
pad10.Length2 = Q("0.2 in")

sketch29 = body.newObject("Sketcher::SketchObject", "Sketch028")
sketch29.AttachmentSupport = (doc.getObject("YZ_Plane"), [""])
sketch29.MapMode = "FlatFace"
sketch29.AttachmentOffset = App.Placement(V(0, 0, -32.9964), App.Rotation())
add_polygon(sketch29, [(-86, -5), (-93, -5), (-93, 71), (-86, 71)])
sketch29.addConstraint(Sketcher.Constraint("Horizontal", 0))
sketch29.addConstraint(Sketcher.Constraint("Vertical", 1))
sketch29.addConstraint(Sketcher.Constraint("Horizontal", 2))
sketch29.addConstraint(Sketcher.Constraint("Vertical", 3))
sketch29.addConstraint(Sketcher.Constraint("DistanceX", 0, 2, 0, 1, Q("0.28 in")))
sketch29.addConstraint(Sketcher.Constraint("DistanceY", 0, 2, -1, 1, Q("0.2 in")))
sketch29.addConstraint(Sketcher.Constraint("DistanceY", 1, 1, 1, 2, 75.760334))
sketch29.addConstraint(Sketcher.Constraint("DistanceX", 0, 2, -1, 1, 92.995131))
pocket19 = body.newObject("PartDesign::Pocket", "Pocket018")
pocket19.Profile = sketch29
pocket19.Type = "ThroughAll"
pocket19.Midplane = True
body2 = doc.addObject("PartDesign::Body", "Body001")

sketch30 = body2.newObject("Sketcher::SketchObject", "Sketch029")
sketch30.AttachmentSupport = (doc.getObject("XZ_Plane001"), [""])
sketch30.MapMode = "FlatFace"
sketch30.AttachmentOffset = App.Placement(V(0, 0, -0.18 * 25.4), App.Rotation())
sketch30.addGeometry(Part.Circle(V(513, 66.6, 0), V(0, 0, 1), 4.7), False)
sketch30.addConstraint(Sketcher.Constraint("Diameter", 0, 9.342632))
sketch30.addConstraint(Sketcher.Constraint("DistanceX", -1, 1, 0, 3, 512.976926))
sketch30.addConstraint(Sketcher.Constraint("DistanceY", -1, 1, 0, 3, 66.629402))
pad11 = body2.newObject("PartDesign::Pad", "Pad010")
pad11.Profile = sketch30
pad11.Type = "TwoLengths"
pad11.Length = Q("0.14 in")
pad11.Length2 = Q("3.46 in")
pad11.Reversed = True

doc.recompute()
